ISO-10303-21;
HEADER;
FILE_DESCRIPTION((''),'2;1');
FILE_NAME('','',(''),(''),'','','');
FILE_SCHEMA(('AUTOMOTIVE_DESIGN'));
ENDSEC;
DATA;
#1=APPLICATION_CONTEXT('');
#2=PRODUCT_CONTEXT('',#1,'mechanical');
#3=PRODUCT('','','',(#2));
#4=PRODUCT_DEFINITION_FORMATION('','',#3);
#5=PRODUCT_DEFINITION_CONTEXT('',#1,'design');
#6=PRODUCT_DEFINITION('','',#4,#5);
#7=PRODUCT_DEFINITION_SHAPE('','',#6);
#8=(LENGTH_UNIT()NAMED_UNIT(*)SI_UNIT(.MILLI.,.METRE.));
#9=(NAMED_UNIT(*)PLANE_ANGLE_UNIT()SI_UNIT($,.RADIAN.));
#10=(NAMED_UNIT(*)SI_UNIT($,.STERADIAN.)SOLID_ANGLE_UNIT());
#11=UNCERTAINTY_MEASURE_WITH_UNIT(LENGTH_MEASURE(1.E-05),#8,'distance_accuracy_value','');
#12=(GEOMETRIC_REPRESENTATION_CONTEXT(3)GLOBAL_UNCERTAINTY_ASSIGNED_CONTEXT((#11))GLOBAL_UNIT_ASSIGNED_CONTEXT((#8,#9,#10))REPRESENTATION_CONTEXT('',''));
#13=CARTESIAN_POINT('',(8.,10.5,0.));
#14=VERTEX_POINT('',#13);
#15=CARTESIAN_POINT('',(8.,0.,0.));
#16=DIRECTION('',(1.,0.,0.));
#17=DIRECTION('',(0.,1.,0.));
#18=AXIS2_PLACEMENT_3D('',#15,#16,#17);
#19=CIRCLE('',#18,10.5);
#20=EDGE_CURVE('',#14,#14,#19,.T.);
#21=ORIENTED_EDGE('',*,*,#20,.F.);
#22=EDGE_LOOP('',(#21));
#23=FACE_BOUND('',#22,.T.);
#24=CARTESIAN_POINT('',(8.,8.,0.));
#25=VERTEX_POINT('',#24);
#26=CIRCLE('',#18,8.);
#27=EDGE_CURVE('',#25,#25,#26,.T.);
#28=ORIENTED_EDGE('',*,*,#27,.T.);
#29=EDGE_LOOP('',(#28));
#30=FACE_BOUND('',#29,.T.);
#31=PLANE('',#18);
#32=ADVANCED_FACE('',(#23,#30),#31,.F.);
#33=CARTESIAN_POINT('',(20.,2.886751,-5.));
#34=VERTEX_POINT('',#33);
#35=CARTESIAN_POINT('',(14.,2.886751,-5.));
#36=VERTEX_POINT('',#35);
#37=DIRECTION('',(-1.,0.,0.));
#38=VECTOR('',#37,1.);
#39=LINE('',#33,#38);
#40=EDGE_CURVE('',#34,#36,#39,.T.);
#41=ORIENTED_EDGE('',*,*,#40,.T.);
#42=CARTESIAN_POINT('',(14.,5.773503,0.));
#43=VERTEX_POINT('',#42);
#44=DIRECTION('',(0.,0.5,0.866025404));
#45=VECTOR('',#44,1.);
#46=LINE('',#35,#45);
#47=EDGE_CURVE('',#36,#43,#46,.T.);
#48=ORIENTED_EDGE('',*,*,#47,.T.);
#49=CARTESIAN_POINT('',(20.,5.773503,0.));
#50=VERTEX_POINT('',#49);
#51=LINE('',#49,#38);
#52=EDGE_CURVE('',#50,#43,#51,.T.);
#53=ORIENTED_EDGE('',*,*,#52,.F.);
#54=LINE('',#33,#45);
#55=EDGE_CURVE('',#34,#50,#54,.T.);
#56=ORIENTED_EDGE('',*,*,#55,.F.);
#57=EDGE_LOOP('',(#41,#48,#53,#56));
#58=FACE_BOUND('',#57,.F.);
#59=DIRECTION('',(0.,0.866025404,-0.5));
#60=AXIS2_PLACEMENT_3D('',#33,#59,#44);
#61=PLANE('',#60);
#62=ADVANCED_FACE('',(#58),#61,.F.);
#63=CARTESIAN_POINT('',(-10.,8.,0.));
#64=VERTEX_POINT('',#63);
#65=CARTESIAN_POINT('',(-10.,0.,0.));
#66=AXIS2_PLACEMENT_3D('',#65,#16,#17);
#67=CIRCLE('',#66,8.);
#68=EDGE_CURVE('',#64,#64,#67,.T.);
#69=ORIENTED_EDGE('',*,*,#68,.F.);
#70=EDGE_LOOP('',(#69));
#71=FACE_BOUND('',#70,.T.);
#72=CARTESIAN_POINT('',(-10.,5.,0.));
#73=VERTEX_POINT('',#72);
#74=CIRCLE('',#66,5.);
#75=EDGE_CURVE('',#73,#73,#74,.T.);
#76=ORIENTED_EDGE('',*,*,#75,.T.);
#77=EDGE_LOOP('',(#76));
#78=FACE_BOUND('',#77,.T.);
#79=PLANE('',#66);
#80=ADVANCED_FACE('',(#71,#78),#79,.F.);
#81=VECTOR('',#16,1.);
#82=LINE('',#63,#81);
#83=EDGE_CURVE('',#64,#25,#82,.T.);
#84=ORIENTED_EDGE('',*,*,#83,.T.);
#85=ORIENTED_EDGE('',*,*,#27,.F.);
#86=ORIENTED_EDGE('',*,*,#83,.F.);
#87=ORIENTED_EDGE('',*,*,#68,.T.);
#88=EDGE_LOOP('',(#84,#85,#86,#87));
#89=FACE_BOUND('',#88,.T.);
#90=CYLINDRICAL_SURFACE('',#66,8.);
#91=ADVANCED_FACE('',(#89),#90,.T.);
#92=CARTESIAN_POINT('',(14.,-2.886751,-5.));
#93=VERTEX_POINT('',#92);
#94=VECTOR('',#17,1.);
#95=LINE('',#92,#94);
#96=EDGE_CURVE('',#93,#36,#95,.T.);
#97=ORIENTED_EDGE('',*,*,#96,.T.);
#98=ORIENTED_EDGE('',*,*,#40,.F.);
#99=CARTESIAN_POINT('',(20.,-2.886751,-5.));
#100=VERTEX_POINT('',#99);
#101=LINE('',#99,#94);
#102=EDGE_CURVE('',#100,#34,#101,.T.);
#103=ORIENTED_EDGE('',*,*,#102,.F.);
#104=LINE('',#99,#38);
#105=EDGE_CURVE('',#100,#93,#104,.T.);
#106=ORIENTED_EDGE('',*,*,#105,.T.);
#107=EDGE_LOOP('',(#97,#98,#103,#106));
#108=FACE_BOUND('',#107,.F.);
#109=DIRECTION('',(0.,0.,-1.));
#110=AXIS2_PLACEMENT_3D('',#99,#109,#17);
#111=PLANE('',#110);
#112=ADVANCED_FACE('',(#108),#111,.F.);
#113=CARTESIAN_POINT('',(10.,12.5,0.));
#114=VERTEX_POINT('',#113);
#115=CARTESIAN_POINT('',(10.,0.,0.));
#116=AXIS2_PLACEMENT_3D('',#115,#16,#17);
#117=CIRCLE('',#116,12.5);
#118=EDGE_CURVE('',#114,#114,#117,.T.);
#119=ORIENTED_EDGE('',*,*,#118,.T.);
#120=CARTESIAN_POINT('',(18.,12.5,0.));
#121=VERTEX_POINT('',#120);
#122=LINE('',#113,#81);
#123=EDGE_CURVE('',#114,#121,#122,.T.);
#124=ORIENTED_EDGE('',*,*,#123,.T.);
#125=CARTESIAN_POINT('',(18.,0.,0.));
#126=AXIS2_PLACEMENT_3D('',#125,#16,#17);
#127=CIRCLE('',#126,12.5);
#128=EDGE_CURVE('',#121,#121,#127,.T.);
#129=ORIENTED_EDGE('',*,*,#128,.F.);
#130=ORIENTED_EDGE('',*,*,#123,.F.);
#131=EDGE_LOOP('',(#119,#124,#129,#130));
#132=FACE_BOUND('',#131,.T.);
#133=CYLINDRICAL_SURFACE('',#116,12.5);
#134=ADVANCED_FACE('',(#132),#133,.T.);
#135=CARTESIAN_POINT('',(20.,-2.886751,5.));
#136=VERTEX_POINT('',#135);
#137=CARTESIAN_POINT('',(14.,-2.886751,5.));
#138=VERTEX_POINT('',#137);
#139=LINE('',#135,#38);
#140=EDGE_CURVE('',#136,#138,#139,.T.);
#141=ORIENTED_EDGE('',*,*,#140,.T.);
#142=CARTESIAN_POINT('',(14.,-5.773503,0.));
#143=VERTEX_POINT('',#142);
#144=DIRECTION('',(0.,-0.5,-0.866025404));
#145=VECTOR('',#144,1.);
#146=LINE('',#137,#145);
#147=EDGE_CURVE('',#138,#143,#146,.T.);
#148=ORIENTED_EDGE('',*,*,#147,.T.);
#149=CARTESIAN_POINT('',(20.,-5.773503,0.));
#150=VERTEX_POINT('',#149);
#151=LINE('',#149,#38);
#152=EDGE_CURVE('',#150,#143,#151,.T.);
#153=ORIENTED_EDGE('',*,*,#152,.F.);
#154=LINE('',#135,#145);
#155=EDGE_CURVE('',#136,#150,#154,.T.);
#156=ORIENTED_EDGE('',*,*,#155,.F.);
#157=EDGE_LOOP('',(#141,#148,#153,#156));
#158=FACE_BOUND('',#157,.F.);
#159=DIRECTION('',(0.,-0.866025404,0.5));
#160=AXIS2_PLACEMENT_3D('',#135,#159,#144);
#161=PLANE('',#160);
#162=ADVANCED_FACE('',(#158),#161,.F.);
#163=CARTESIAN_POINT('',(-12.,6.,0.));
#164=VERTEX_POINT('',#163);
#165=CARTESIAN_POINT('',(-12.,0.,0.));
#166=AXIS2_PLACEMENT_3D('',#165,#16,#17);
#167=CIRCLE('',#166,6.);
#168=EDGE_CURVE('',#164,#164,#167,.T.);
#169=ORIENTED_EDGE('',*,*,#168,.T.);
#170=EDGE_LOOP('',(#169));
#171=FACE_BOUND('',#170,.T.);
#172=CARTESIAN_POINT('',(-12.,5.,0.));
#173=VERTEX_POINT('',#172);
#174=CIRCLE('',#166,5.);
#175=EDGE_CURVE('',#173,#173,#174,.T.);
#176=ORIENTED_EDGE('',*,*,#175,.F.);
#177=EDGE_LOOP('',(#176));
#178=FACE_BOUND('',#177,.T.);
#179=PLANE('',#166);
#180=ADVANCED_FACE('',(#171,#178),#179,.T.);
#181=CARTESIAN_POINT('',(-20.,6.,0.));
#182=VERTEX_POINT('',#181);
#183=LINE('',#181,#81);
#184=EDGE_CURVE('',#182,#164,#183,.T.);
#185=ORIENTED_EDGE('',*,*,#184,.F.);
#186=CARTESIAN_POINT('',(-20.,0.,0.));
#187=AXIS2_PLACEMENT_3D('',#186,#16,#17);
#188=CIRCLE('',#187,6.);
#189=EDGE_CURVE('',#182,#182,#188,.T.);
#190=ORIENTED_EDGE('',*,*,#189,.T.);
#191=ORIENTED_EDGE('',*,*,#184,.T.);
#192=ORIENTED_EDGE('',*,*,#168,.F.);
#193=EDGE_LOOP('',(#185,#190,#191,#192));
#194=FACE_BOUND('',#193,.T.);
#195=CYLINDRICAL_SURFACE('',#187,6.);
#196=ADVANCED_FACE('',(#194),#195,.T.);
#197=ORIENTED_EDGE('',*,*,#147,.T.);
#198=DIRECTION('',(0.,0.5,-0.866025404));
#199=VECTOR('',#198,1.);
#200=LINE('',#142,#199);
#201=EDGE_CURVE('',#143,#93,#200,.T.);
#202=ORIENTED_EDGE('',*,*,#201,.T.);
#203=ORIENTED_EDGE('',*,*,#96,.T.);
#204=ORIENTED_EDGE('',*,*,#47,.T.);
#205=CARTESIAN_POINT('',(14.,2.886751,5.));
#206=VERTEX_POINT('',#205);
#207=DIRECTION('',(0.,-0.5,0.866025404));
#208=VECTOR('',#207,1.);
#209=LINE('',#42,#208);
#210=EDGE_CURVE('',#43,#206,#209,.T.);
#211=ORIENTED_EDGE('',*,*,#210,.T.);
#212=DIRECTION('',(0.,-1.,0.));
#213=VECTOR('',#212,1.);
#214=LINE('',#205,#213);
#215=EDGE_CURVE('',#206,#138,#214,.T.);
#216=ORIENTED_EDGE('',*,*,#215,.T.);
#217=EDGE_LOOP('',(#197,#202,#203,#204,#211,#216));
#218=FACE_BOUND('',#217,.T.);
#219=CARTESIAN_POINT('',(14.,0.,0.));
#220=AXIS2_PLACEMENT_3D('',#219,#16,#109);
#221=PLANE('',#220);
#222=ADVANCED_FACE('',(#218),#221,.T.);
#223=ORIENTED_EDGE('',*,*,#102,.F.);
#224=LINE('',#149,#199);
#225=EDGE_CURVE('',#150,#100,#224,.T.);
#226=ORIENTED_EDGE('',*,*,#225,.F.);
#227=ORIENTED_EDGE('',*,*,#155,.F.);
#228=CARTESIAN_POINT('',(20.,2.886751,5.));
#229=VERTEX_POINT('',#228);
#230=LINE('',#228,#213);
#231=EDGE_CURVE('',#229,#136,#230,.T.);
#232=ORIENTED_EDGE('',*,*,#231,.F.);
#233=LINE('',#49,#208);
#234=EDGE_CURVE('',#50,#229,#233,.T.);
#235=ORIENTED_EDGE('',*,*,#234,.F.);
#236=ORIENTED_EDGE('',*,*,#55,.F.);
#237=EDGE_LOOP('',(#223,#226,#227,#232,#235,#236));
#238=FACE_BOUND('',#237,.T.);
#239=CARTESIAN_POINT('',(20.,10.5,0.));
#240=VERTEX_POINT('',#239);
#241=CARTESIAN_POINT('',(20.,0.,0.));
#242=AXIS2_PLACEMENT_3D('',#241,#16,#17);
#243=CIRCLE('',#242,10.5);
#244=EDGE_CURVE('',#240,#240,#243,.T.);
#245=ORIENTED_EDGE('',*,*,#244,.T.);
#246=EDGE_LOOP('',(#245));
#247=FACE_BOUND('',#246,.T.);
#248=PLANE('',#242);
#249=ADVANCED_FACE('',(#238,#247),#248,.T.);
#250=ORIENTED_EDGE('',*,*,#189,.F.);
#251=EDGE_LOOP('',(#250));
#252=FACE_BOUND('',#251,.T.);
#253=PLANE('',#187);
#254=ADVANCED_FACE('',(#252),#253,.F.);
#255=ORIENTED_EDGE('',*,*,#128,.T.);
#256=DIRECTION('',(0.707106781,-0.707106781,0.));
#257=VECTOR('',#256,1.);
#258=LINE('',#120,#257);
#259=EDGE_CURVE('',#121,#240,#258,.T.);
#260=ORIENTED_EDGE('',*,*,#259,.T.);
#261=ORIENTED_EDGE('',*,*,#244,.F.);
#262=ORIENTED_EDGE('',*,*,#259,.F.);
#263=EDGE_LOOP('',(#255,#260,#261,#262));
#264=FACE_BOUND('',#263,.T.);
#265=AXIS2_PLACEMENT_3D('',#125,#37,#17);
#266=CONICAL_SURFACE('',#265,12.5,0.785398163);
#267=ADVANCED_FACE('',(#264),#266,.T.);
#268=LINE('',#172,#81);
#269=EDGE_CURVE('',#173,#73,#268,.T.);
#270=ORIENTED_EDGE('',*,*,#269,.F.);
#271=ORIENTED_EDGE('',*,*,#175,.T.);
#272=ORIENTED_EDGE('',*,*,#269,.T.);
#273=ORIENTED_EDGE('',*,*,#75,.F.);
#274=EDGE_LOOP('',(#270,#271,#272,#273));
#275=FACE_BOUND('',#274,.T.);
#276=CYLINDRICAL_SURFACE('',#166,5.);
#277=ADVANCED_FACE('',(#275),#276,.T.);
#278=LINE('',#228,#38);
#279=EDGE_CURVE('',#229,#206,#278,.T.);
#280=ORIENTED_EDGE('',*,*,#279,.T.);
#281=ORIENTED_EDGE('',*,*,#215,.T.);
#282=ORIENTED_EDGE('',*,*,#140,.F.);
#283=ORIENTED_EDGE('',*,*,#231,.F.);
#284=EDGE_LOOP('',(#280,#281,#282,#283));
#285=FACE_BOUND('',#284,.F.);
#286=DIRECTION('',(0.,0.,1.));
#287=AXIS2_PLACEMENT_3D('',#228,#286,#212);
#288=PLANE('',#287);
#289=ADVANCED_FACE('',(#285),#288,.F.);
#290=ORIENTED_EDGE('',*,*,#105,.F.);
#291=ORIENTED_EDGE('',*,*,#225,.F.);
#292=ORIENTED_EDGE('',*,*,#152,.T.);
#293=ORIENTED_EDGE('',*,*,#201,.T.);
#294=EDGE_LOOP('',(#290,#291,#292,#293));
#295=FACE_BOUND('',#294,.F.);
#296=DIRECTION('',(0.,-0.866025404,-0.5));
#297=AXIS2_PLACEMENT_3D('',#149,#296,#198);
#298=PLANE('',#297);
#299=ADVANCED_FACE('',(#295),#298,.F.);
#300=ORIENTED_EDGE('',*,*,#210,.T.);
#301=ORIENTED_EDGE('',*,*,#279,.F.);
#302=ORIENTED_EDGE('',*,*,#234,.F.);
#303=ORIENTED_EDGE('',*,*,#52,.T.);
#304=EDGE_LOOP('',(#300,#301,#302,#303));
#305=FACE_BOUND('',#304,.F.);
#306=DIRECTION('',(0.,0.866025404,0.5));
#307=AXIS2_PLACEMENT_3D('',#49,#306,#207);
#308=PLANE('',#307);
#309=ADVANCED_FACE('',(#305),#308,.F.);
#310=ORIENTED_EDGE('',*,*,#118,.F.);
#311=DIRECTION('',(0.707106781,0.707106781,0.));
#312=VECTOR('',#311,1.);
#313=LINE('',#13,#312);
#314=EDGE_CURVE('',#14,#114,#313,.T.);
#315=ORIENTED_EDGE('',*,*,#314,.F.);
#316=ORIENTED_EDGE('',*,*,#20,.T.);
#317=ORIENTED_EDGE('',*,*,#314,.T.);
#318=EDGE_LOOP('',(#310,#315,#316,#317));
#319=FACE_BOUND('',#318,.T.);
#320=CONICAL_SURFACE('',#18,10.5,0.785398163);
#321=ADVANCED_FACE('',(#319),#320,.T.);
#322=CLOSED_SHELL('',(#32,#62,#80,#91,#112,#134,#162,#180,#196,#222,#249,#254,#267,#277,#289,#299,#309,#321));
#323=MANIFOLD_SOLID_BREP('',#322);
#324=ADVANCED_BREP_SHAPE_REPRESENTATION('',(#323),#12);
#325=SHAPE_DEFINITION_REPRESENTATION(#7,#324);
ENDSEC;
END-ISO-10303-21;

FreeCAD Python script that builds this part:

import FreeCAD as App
import Part
import Sketcher
Q = App.Units.Quantity


def add_polygon(sketch, points):
    """Adds a closed chain of lines whose ends are joined by coincident constraints."""
    first, n = sketch.GeometryCount, len(points)
    for a, b in zip(points, points[1:] + points[:1]):
        sketch.addGeometry(Part.LineSegment(App.Vector(*a, 0), App.Vector(*b, 0)), False)
    for i in range(n):
        sketch.addConstraint(Sketcher.Constraint("Coincident", first + i, 2, first + (i + 1) % n, 1))

doc = App.newDocument("Part")
body = doc.addObject("PartDesign::Body", "Body")

# Sketch on XY plane
sketch1 = body.newObject("Sketcher::SketchObject", "Sketch")
sketch1.AttachmentSupport = (doc.getObject("XY_Plane"), [""])
sketch1.MapMode = "FlatFace"
add_polygon(sketch1, [(-20, 6), (-20, 0), (20, 0), (20, 10.5), (18, 12.5), (10, 12.5), (8, 10.5), (8, 8), (-10, 8), (-10, 5), (-12, 5), (-12, 6)])  # lines 0-11
sketch1.addConstraint([
    Sketcher.Constraint("Vertical", 0),
    Sketcher.Constraint("Horizontal", 1),
    Sketcher.Constraint("Vertical", 2),
    Sketcher.Constraint("Horizontal", 4),
    Sketcher.Constraint("Vertical", 6),
    Sketcher.Constraint("Horizontal", 7),
    Sketcher.Constraint("Vertical", 8),
    Sketcher.Constraint("Horizontal", 9),
    Sketcher.Constraint("Vertical", 10),
    Sketcher.Constraint("Horizontal", 11),
    Sketcher.Constraint("Symmetric", 0, 2, 1, 2, -1, 1),
    Sketcher.Constraint("Perpendicular", 3, 5),
    Sketcher.Constraint("Horizontal", 2, 2, 5, 2),
    Sketcher.Constraint("Equal", 4, 11),
    Sketcher.Constraint("Equal", 3, 5),
    Sketcher.Constraint("DistanceX", 1, 1, 1, 2, 40.0),
    Sketcher.Constraint("DistanceX", 4, 2, 4, 1, 8.0),
    Sketcher.Constraint("DistanceX", 7, 2, 7, 1, 18.0),
    Sketcher.Constraint("DistanceX", 9, 2, 9, 1, 2.0),
    Sketcher.Constraint("DistanceY", 0, 2, 0, 1, 6.0),
    Sketcher.Constraint("DistanceY", 8, 2, 8, 1, 3.0),
    Sketcher.Constraint("DistanceY", 10, 1, 10, 2, 1.0),
    Sketcher.Constraint("DistanceY", 2, 1, 2, 2, 10.5),
])
revolution = body.newObject("PartDesign::Revolution", "Revolution")
revolution.Profile = sketch1
revolution.ReferenceAxis = (sketch1, ["H_Axis"])
revolution.Angle = 360

# Sketch on YZ plane
sketch2 = body.newObject("Sketcher::SketchObject", "Sketch001")
sketch2.AttachmentSupport = (doc.getObject("YZ_Plane"), [""])
sketch2.MapMode = "FlatFace"
sketch2.AttachmentOffset = App.Placement(App.Vector(0, 0, 20), App.Rotation())
add_polygon(sketch2, [(6, 0), (3, 5), (-3, 5), (-6, 0), (-3, -5), (3, -5)])  # lines 0-5
sketch2.addConstraint([
    Sketcher.Constraint("Horizontal", 1),
    Sketcher.Constraint("Horizontal", 4),
    Sketcher.Constraint("Symmetric", 0, 2, 3, 2, -1, 1),
    Sketcher.Constraint("Symmetric", 2, 2, 5, 2, -1, 1),
    Sketcher.Constraint("PointOnObject", 2, 2, -1),
    Sketcher.Constraint("Parallel", 2, 5),
    Sketcher.Constraint("Vertical", 1, 2, 3, 2),
    Sketcher.Constraint("Angle", 0, Q("120 deg")),
    Sketcher.Constraint("DistanceY", -1, 1, 0, 2, 5.0),
    Sketcher.Constraint("DistanceX", 1, 2, 1, 1, 5.773503),
])
pocket1 = body.newObject("PartDesign::Pocket", "Pocket")
pocket1.Profile = sketch2
pocket1.Type = "TwoLengths"
pocket1.Length = 1
pocket1.Length2 = 6
pocket1.Reversed = True

doc.recompute()
